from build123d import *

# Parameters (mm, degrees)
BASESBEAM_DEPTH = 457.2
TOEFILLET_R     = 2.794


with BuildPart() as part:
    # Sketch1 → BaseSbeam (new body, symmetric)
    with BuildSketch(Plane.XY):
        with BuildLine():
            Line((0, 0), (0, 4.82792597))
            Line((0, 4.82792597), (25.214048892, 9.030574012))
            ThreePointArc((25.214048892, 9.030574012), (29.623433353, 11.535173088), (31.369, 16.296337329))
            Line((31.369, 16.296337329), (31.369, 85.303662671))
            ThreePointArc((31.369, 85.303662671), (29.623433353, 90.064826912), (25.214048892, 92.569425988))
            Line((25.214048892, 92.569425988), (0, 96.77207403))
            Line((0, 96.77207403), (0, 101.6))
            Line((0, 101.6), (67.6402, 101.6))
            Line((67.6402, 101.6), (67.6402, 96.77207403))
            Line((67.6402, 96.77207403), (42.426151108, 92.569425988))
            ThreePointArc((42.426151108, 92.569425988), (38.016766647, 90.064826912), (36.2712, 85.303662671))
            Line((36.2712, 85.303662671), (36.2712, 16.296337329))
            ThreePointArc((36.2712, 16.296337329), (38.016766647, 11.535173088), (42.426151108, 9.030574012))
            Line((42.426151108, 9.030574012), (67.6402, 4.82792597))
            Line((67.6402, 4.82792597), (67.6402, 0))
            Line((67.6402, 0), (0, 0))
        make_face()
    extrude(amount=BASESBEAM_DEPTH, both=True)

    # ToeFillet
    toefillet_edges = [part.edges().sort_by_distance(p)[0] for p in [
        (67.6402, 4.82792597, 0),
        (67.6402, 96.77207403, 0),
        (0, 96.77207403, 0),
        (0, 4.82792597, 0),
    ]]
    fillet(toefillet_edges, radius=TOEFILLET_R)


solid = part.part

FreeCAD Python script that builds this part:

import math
import FreeCAD as App
import Part
import Sketcher
Q = App.Units.Quantity


def edges_at(feature, points):
    """Names of the edges that pass closest to the given points."""
    edges = feature.Shape.Edges
    near = lambda p: min(range(len(edges)), key=lambda i: edges[i].distToShape(Part.Vertex(*p))[0])
    return sorted({f"Edge{near(p) + 1}" for p in points})

doc = App.newDocument("Part")
body = doc.addObject("PartDesign::Body", "Body")

# Sketch on XY plane
sketch1 = body.newObject("Sketcher::SketchObject", "Sketch")
sketch1.AttachmentSupport = (doc.getObject("XY_Plane"), [""])
sketch1.MapMode = "FlatFace"
sketch1.addGeometry([
    Part.LineSegment(App.Vector(0, 4.8, 0), App.Vector(0, 0, 0)),  # 0
    Part.LineSegment(App.Vector(0, 0, 0), App.Vector(67.6, 0, 0)),  # 1
    Part.LineSegment(App.Vector(67.6, 0, 0), App.Vector(67.6, 4.8, 0)),  # 2
    Part.LineSegment(App.Vector(67.6, 4.8, 0), App.Vector(42.4, 9, 0)),  # 3
    Part.ArcOfCircle(Part.Circle(App.Vector(43.6, 16.3, 0), App.Vector(0, 0, 1), 7.4), math.radians(180), math.radians(261)),  # 4
    Part.LineSegment(App.Vector(36.3, 16.3, 0), App.Vector(36.3, 85.3, 0)),  # 5
    Part.ArcOfCircle(Part.Circle(App.Vector(43.6, 85.3, 0), App.Vector(0, 0, 1), 7.4), math.radians(99), math.radians(180)),  # 6
    Part.LineSegment(App.Vector(42.4, 92.6, 0), App.Vector(67.6, 96.8, 0)),  # 7
    Part.LineSegment(App.Vector(67.6, 96.8, 0), App.Vector(67.6, 101.6, 0)),  # 8
    Part.LineSegment(App.Vector(67.6, 101.6, 0), App.Vector(0, 101.6, 0)),  # 9
    Part.LineSegment(App.Vector(0, 101.6, 0), App.Vector(0, 96.8, 0)),  # 10
    Part.LineSegment(App.Vector(0, 96.8, 0), App.Vector(25.2, 92.6, 0)),  # 11
    Part.ArcOfCircle(Part.Circle(App.Vector(24, 85.3, 0), App.Vector(0, 0, 1), 7.4), math.radians(0), math.radians(81)),  # 12
    Part.LineSegment(App.Vector(31.4, 85.3, 0), App.Vector(31.4, 16.3, 0)),  # 13
    Part.ArcOfCircle(Part.Circle(App.Vector(24, 16.3, 0), App.Vector(0, 0, 1), 7.4), math.radians(-81), math.radians(0)),  # 14
    Part.LineSegment(App.Vector(25.2, 9, 0), App.Vector(0, 4.8, 0)),  # 15
], False)
sketch1.addConstraint([
    Sketcher.Constraint("Coincident", 0, 2, 1, 1),
    Sketcher.Constraint("Coincident", 1, 2, 2, 1),
    Sketcher.Constraint("Coincident", 2, 2, 3, 1),
    Sketcher.Constraint("Tangent", 3, 2, 4, 2),
    Sketcher.Constraint("Tangent", 4, 1, 5, 1),
    Sketcher.Constraint("Tangent", 5, 2, 6, 2),
    Sketcher.Constraint("Tangent", 6, 1, 7, 1),
    Sketcher.Constraint("Coincident", 7, 2, 8, 1),
    Sketcher.Constraint("Coincident", 8, 2, 9, 1),
    Sketcher.Constraint("Coincident", 9, 2, 10, 1),
    Sketcher.Constraint("Coincident", 10, 2, 11, 1),
    Sketcher.Constraint("Tangent", 11, 2, 12, 2),
    Sketcher.Constraint("Tangent", 12, 1, 13, 1),
    Sketcher.Constraint("Tangent", 13, 2, 14, 2),
    Sketcher.Constraint("Tangent", 14, 1, 15, 1),
    Sketcher.Constraint("Coincident", 15, 2, 0, 1),
    Sketcher.Constraint("Vertical", 0),
    Sketcher.Constraint("Horizontal", 1),
    Sketcher.Constraint("Vertical", 2),
    Sketcher.Constraint("Vertical", 5),
    Sketcher.Constraint("Vertical", 8),
    Sketcher.Constraint("Horizontal", 9),
    Sketcher.Constraint("Vertical", 10),
    Sketcher.Constraint("Vertical", 13),
    Sketcher.Constraint("Coincident", 0, 2, -1, 1),
    Sketcher.Constraint("Equal", 4, 6),
    Sketcher.Constraint("Equal", 6, 12),
    Sketcher.Constraint("Equal", 12, 14),
    Sketcher.Constraint("PointOnObject", 9, 2, -2),
    Sketcher.Constraint("Parallel", 3, 11),
    Sketcher.Constraint("Parallel", 7, 15),
    Sketcher.Constraint("Horizontal", 6, 3, 12, 3),
    Sketcher.Constraint("Horizontal", 4, 3, 14, 3),
    Sketcher.Constraint("Horizontal", 7, 2, 10, 2),
    Sketcher.Constraint("Horizontal", 6, 1, 11, 2),
    Sketcher.Constraint("Horizontal", 2, 2, 15, 2),
    Sketcher.Constraint("Equal", 2, 8),
    Sketcher.Constraint("Radius", 4, Q("0.29 in")),
    Sketcher.Constraint("DistanceY", -1, 1, 8, 2, Q("4 in")),
    Sketcher.Constraint("DistanceX", 1, 1, 1, 2, Q("2.663 in")),
    Sketcher.Constraint("DistanceX", -1, 1, 4, 3, Q("1.718 in")),
    Sketcher.Constraint("DistanceY", 0, 2, 0, 1, Q("4.827926 mm")),
    Sketcher.Constraint("DistanceY", 5, 1, 5, 2, Q("69.007325 mm")),
])
pad1 = body.newObject("PartDesign::Pad", "Pad")
pad1.Profile = sketch1
pad1.Length = Q("36 in")
pad1.Midplane = True
doc.recompute()

fillet = body.newObject("PartDesign::Fillet", "Fillet")
fillet.Base = (pad1, edges_at(pad1, [
    (67.64, 4.828, 0),
    (67.64, 96.772, 0),
    (0, 96.772, 0),
    (0, 4.828, 0),
]))
fillet.Radius = Q("0.11 in")

doc.recompute()
